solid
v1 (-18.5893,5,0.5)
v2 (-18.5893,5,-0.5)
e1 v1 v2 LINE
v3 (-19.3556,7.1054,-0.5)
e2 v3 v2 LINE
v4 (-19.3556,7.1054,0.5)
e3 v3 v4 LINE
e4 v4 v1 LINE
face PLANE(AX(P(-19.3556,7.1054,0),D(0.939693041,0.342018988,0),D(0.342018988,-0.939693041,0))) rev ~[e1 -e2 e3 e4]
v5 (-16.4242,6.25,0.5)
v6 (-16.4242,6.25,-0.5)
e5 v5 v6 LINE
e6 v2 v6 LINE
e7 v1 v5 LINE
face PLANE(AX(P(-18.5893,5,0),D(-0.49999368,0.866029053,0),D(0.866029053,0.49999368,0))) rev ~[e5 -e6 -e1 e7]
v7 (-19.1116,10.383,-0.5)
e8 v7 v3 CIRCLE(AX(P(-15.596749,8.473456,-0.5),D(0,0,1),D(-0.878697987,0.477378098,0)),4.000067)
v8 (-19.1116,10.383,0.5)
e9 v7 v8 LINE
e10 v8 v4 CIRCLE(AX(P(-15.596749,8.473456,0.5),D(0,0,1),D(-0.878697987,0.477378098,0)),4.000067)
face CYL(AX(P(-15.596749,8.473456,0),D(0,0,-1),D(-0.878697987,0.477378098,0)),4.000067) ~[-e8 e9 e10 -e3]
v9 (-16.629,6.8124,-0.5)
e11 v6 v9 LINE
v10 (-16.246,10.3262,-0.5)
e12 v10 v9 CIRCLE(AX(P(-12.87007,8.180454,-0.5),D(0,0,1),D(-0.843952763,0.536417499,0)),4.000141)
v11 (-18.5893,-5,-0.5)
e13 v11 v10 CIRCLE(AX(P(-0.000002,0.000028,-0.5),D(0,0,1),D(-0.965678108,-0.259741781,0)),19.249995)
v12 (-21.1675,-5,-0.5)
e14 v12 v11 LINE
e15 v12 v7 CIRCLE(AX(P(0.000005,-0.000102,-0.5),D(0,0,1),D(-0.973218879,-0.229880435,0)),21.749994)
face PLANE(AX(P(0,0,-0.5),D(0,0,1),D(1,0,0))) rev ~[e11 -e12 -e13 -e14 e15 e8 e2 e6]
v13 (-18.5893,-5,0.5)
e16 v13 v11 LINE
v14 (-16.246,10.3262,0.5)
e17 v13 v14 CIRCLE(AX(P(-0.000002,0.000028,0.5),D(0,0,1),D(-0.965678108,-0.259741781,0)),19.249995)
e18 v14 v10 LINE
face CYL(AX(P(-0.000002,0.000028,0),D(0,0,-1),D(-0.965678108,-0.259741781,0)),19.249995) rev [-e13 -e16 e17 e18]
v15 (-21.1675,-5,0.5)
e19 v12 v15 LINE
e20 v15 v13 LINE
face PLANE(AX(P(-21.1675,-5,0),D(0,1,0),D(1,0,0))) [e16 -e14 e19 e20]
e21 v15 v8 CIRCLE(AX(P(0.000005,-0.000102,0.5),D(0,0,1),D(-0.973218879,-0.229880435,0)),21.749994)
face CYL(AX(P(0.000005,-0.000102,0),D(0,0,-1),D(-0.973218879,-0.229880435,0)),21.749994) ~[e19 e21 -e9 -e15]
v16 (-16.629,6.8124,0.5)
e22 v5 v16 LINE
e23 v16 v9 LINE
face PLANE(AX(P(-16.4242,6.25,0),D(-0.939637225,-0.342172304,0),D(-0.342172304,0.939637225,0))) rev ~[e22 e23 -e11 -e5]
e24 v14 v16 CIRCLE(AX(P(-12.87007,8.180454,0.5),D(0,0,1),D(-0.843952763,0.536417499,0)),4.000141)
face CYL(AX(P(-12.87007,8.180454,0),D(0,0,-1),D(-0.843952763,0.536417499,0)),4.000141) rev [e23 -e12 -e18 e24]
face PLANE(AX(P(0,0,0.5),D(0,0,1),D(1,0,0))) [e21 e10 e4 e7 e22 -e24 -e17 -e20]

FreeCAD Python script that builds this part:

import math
import FreeCAD as App
import Part
import Sketcher
Q = App.Units.Quantity

doc = App.newDocument("Part")
body = doc.addObject("PartDesign::Body", "Body")

# Sketch on XY plane
sketch1 = body.newObject("Sketcher::SketchObject", "Sketch")
sketch1.AttachmentSupport = (doc.getObject("XY_Plane"), [""])
sketch1.MapMode = "FlatFace"
sketch1.addGeometry([
    Part.LineSegment(App.Vector(-18.6, -5, 0), App.Vector(-21.2, -5, 0)),  # 0
    Part.ArcOfCircle(Part.Circle(App.Vector(0, 0, 0), App.Vector(0, 0, 1), 21.8), math.radians(-167), math.radians(151)),  # 1
    Part.ArcOfCircle(Part.Circle(App.Vector(-15.6, 8.5, 0), App.Vector(0, 0, 1), 4), math.radians(151), math.radians(200)),  # 2
    Part.LineSegment(App.Vector(-19.4, 7.1, 0), App.Vector(-18.6, 5, 0)),  # 3
    Part.LineSegment(App.Vector(-18.6, 5, 0), App.Vector(-16.4, 6.2, 0)),  # 4
    Part.LineSegment(App.Vector(-16.4, 6.2, 0), App.Vector(-16.6, 6.8, 0)),  # 5
    Part.ArcOfCircle(Part.Circle(App.Vector(-12.9, 8.2, 0), App.Vector(0, 0, 1), 4), math.radians(148), math.radians(200)),  # 6
    Part.ArcOfCircle(Part.Circle(App.Vector(0, 0, 0), App.Vector(0, 0, 1), 19.2), math.radians(-165), math.radians(148)),  # 7
], False)
sketch1.addConstraint([
    Sketcher.Constraint("Coincident", 0, 2, 1, 1),
    Sketcher.Constraint("Tangent", 1, 2, 2, 1),
    Sketcher.Constraint("Tangent", 2, 2, 3, 1),
    Sketcher.Constraint("Coincident", 3, 2, 4, 1),
    Sketcher.Constraint("Coincident", 4, 2, 5, 1),
    Sketcher.Constraint("Tangent", 5, 2, 6, 2),
    Sketcher.Constraint("Tangent", 6, 1, 7, 2),
    Sketcher.Constraint("Coincident", 7, 1, 0, 1),
    Sketcher.Constraint("Horizontal", 0),
    Sketcher.Constraint("Coincident", 1, 3, -1, 1),
    Sketcher.Constraint("Coincident", 7, 3, -1, 1),
    Sketcher.Constraint("Equal", 2, 6),
    Sketcher.Constraint("Symmetric", 3, 2, 7, 1, -1),
    Sketcher.Constraint("Parallel", 3, 5),
    Sketcher.Constraint("Radius", 2, Q("4 mm")),
    Sketcher.Constraint("Angle", 4, Q("29.9996 deg")),
    Sketcher.Constraint("Radius", 1, Q("21.75 mm")),
    Sketcher.Constraint("DistanceY", 0, 2, 3, 2, Q("10 mm")),
    Sketcher.Constraint("Distance", 4, Q("2.5 mm")),
    Sketcher.Constraint("Angle", 3, Q("-70 deg")),
    Sketcher.Constraint("Radius", 7, Q("19.25 mm")),
])
pad1 = body.newObject("PartDesign::Pad", "Pad")
pad1.Profile = sketch1
pad1.Length = 1
pad1.Midplane = True

doc.recompute()
